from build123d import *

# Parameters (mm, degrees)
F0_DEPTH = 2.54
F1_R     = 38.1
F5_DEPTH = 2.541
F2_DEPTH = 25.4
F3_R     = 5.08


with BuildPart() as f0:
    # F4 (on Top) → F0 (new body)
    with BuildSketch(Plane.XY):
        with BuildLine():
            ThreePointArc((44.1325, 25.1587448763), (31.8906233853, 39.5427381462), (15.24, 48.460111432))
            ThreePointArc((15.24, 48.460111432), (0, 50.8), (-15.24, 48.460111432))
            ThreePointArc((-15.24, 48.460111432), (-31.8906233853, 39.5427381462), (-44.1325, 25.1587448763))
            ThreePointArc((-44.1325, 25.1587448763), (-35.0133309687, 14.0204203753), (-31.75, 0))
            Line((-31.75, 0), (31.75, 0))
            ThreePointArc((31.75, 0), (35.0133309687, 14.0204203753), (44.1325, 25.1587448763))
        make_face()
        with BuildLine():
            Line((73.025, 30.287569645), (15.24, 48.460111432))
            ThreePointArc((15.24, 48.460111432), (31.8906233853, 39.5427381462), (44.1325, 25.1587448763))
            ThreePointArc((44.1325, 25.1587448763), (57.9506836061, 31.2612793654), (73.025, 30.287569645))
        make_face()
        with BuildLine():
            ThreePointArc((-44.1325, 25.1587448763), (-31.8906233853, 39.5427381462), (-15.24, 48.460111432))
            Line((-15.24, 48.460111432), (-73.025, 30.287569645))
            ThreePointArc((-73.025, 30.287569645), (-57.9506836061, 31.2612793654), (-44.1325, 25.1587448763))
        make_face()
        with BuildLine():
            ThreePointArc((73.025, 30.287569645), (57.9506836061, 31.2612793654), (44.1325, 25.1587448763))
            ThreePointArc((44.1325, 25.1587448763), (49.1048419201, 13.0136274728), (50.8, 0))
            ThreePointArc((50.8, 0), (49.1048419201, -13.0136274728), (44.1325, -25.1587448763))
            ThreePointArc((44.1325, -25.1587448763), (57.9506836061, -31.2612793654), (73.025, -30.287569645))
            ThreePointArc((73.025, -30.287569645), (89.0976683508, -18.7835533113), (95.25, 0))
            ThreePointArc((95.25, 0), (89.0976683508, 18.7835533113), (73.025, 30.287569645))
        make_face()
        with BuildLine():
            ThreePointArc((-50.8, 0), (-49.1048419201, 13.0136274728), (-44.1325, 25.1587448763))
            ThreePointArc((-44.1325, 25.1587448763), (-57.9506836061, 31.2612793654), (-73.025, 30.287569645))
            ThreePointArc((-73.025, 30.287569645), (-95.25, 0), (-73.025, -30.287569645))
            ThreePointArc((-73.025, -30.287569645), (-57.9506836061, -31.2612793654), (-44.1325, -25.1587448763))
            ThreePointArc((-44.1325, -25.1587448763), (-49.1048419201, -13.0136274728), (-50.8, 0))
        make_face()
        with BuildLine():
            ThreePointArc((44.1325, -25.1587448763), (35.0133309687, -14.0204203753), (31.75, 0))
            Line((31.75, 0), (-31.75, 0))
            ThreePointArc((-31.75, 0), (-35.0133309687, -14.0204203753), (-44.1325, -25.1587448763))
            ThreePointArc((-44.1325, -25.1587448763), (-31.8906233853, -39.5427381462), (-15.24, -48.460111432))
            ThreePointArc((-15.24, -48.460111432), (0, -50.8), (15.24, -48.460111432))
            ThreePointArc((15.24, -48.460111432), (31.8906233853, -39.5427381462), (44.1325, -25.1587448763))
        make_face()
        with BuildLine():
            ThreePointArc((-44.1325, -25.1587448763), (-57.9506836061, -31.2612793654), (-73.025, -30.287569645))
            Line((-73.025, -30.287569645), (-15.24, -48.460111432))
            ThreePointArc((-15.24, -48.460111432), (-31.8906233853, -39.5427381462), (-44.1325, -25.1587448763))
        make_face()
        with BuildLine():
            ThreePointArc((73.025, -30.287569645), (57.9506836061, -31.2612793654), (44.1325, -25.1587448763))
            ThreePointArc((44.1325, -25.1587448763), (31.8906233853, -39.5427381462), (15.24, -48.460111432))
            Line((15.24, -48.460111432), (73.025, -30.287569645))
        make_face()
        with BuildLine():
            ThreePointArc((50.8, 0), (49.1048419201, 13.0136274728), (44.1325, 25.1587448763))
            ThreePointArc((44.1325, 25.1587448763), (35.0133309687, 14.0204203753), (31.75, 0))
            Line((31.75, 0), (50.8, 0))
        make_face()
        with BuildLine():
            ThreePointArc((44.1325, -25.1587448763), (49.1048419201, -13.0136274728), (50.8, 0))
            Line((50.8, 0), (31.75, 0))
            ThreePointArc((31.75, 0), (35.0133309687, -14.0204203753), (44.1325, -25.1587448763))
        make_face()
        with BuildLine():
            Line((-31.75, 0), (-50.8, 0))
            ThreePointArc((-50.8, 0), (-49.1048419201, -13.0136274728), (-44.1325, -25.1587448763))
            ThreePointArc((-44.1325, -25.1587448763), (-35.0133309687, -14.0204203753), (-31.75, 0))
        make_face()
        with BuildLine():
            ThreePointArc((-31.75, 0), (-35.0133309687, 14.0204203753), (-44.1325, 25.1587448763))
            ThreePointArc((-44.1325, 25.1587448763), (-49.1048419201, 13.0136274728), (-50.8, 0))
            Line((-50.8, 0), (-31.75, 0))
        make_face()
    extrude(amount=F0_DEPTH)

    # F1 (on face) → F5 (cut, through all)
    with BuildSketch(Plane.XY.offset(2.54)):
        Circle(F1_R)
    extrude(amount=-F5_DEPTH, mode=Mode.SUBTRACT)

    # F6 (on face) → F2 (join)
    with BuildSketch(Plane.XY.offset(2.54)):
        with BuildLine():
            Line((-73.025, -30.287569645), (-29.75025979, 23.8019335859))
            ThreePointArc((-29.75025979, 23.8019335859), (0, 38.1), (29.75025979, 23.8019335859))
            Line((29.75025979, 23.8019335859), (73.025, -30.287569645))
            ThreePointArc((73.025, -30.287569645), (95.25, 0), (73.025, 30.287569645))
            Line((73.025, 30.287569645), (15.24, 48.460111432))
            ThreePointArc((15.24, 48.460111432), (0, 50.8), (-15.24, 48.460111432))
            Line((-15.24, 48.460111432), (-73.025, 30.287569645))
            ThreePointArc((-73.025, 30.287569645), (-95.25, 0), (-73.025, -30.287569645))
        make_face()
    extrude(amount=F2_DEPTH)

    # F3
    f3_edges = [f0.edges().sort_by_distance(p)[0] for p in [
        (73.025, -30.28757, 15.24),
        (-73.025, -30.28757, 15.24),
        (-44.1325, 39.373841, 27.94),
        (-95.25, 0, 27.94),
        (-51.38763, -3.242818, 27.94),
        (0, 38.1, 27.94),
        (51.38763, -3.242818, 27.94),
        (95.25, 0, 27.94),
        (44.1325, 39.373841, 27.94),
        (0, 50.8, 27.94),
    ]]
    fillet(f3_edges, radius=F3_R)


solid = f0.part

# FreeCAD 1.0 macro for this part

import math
import FreeCAD as App
import Part
import Sketcher

V = App.Vector
Q = App.Units.Quantity


def edges_at(feature, points):
    """Names of the edges that pass closest to the given points."""
    edges = feature.Shape.Edges
    near = lambda p: min(range(len(edges)), key=lambda i: edges[i].distToShape(Part.Vertex(*p))[0])
    return sorted({f"Edge{near(p) + 1}" for p in points})

doc = App.newDocument("Part")
body = doc.addObject("PartDesign::Body", "Body")

# Sketch on XY plane
sketch1 = doc.addObject("Sketcher::SketchObject", "Sketch")
body.addObject(sketch1)
sketch1.AttachmentSupport = (doc.XY_Plane, [""])
sketch1.MapMode = "FlatFace"
sketch1.addGeometry([
    Part.ArcOfCircle(Part.Circle(V(0, 0, 0), V(0, 0, 1), 51), math.radians(-107), math.radians(-73)),  # 0
    Part.LineSegment(V(15, -48, 0), V(73, -30, 0)),  # 1
    Part.ArcOfCircle(Part.Circle(V(64, 0, 0), V(0, 0, 1), 32), math.radians(-73), math.radians(0)),  # 2
    Part.ArcOfCircle(Part.Circle(V(64, 0, 0), V(0, 0, 1), 32), math.radians(0), math.radians(73)),  # 3
    Part.LineSegment(V(73, 30, 0), V(15, 48, 0)),  # 4
    Part.ArcOfCircle(Part.Circle(V(0, 0, 0), V(0, 0, 1), 51), math.radians(73), math.radians(107)),  # 5
    Part.LineSegment(V(-15, 48, 0), V(-73, 30, 0)),  # 6
    Part.ArcOfCircle(Part.Circle(V(-64, 0, 0), V(0, 0, 1), 32), math.radians(107), math.radians(253)),  # 7
    Part.LineSegment(V(-73, -30, 0), V(-15, -48, 0)),  # 8
], False)
sketch1.addConstraint([
    Sketcher.Constraint("Tangent", 0, 2, 1, 1),
    Sketcher.Constraint("Tangent", 1, 2, 2, 1),
    Sketcher.Constraint("Tangent", 2, 2, 3, 1),
    Sketcher.Constraint("Tangent", 3, 2, 4, 1),
    Sketcher.Constraint("Tangent", 4, 2, 5, 1),
    Sketcher.Constraint("Tangent", 5, 2, 6, 1),
    Sketcher.Constraint("Tangent", 6, 2, 7, 1),
    Sketcher.Constraint("Tangent", 7, 2, 8, 1),
    Sketcher.Constraint("Tangent", 8, 2, 0, 1),
    Sketcher.Constraint("Coincident", 0, 3, -1, 1),
    Sketcher.Constraint("Coincident", 5, 3, -1, 1),
    Sketcher.Constraint("Equal", 2, 3),
    Sketcher.Constraint("Equal", 0, 5),
    Sketcher.Constraint("Equal", 3, 7),
    Sketcher.Constraint("Symmetric", 2, 3, 7, 3, -1, 1),
    Sketcher.Constraint("PointOnObject", 2, 3, -1),
    Sketcher.Constraint("PointOnObject", 2, 2, -1),
    Sketcher.Constraint("Radius", 0, Q("2 in")),
    Sketcher.Constraint("Radius", 2, Q("1.25 in")),
    Sketcher.Constraint("DistanceX", 7, 3, 2, 3, Q("5 in")),
])
pad1 = doc.addObject("PartDesign::Pad", "Pad")
body.addObject(pad1)
pad1.Profile = sketch1
pad1.Length = Q("0.1 in")

# Sketch on XY plane
sketch2 = doc.addObject("Sketcher::SketchObject", "Sketch001")
body.addObject(sketch2)
sketch2.AttachmentSupport = (doc.XY_Plane, [""])
sketch2.MapMode = "FlatFace"
sketch2.AttachmentOffset = App.Placement(V(0, 0, 0.1 * 25.4), App.Rotation())
sketch2.addGeometry(Part.Circle(V(0, 0, 0), V(0, 0, 1), 38), False)
sketch2.addConstraint([
    Sketcher.Constraint("Coincident", 0, 3, -1, 1),
    Sketcher.Constraint("Diameter", 0, Q("3 in")),
])
pocket1 = doc.addObject("PartDesign::Pocket", "Pocket")
body.addObject(pocket1)
pocket1.Profile = sketch2
pocket1.Type = "ThroughAll"

# Sketch on XY plane
sketch3 = doc.addObject("Sketcher::SketchObject", "Sketch002")
body.addObject(sketch3)
sketch3.AttachmentSupport = (doc.XY_Plane, [""])
sketch3.MapMode = "FlatFace"
sketch3.AttachmentOffset = App.Placement(V(0, 0, 0.1 * 25.4), App.Rotation())
sketch3.addGeometry([
    Part.LineSegment(V(-73, -30, 0), V(-30, 24, 0)),  # 0
    Part.ArcOfCircle(Part.Circle(V(0, 0, 0), V(0, 0, 1), 38), math.radians(39), math.radians(141)),  # 1
    Part.LineSegment(V(30, 24, 0), V(73, -30, 0)),  # 2
    Part.ArcOfCircle(Part.Circle(V(64, 0, 0), V(0, 0, 1), 32), math.radians(-73), math.radians(73)),  # 3
    Part.LineSegment(V(73, 30, 0), V(15, 48, 0)),  # 4
    Part.ArcOfCircle(Part.Circle(V(0, 0, 0), V(0, 0, 1), 51), math.radians(73), math.radians(107)),  # 5
    Part.LineSegment(V(-15, 48, 0), V(-73, 30, 0)),  # 6
    Part.ArcOfCircle(Part.Circle(V(-64, 0, 0), V(0, 0, 1), 32), math.radians(107), math.radians(253)),  # 7
], False)
sketch3.addConstraint([
    Sketcher.Constraint("Tangent", 0, 2, 1, 2),
    Sketcher.Constraint("Tangent", 1, 1, 2, 1),
    Sketcher.Constraint("Coincident", 2, 2, 3, 1),
    Sketcher.Constraint("Tangent", 3, 2, 4, 1),
    Sketcher.Constraint("Tangent", 4, 2, 5, 1),
    Sketcher.Constraint("Tangent", 5, 2, 6, 1),
    Sketcher.Constraint("Tangent", 6, 2, 7, 1),
    Sketcher.Constraint("Coincident", 7, 2, 0, 1),
    Sketcher.Constraint("Coincident", 1, 3, -1, 1),
    Sketcher.Constraint("Coincident", 5, 3, -1, 1),
    Sketcher.Constraint("Equal", 3, 7),
    Sketcher.Constraint("Symmetric", 3, 3, 7, 3, -1, 1),
    Sketcher.Constraint("Symmetric", 2, 2, 7, 2, -2),
    Sketcher.Constraint("Vertical", 2, 2, 3, 2),
    Sketcher.Constraint("Radius", 5, Q("2 in")),
    Sketcher.Constraint("Radius", 1, Q("1.5 in")),
    Sketcher.Constraint("Radius", 3, Q("1.25 in")),
    Sketcher.Constraint("DistanceX", 7, 3, 3, 3, Q("5 in")),
])
pad2 = doc.addObject("PartDesign::Pad", "Pad001")
body.addObject(pad2)
pad2.Profile = sketch3
pad2.Length = Q("1 in")
doc.recompute()

fillet = doc.addObject("PartDesign::Fillet", "Fillet")
body.addObject(fillet)
fillet.Base = (pad2, edges_at(pad2, [
    (73.025, -30.288, 15.24),
    (-73.025, -30.288, 15.24),
    (-44.133, 39.374, 27.94),
    (-95.25, 0, 27.94),
    (-51.388, -3.243, 27.94),
    (0, 38.1, 27.94),
    (51.388, -3.243, 27.94),
    (95.25, 0, 27.94),
    (44.133, 39.374, 27.94),
    (0, 50.8, 27.94),
]))
fillet.Radius = Q("0.2 in")

doc.recompute()
